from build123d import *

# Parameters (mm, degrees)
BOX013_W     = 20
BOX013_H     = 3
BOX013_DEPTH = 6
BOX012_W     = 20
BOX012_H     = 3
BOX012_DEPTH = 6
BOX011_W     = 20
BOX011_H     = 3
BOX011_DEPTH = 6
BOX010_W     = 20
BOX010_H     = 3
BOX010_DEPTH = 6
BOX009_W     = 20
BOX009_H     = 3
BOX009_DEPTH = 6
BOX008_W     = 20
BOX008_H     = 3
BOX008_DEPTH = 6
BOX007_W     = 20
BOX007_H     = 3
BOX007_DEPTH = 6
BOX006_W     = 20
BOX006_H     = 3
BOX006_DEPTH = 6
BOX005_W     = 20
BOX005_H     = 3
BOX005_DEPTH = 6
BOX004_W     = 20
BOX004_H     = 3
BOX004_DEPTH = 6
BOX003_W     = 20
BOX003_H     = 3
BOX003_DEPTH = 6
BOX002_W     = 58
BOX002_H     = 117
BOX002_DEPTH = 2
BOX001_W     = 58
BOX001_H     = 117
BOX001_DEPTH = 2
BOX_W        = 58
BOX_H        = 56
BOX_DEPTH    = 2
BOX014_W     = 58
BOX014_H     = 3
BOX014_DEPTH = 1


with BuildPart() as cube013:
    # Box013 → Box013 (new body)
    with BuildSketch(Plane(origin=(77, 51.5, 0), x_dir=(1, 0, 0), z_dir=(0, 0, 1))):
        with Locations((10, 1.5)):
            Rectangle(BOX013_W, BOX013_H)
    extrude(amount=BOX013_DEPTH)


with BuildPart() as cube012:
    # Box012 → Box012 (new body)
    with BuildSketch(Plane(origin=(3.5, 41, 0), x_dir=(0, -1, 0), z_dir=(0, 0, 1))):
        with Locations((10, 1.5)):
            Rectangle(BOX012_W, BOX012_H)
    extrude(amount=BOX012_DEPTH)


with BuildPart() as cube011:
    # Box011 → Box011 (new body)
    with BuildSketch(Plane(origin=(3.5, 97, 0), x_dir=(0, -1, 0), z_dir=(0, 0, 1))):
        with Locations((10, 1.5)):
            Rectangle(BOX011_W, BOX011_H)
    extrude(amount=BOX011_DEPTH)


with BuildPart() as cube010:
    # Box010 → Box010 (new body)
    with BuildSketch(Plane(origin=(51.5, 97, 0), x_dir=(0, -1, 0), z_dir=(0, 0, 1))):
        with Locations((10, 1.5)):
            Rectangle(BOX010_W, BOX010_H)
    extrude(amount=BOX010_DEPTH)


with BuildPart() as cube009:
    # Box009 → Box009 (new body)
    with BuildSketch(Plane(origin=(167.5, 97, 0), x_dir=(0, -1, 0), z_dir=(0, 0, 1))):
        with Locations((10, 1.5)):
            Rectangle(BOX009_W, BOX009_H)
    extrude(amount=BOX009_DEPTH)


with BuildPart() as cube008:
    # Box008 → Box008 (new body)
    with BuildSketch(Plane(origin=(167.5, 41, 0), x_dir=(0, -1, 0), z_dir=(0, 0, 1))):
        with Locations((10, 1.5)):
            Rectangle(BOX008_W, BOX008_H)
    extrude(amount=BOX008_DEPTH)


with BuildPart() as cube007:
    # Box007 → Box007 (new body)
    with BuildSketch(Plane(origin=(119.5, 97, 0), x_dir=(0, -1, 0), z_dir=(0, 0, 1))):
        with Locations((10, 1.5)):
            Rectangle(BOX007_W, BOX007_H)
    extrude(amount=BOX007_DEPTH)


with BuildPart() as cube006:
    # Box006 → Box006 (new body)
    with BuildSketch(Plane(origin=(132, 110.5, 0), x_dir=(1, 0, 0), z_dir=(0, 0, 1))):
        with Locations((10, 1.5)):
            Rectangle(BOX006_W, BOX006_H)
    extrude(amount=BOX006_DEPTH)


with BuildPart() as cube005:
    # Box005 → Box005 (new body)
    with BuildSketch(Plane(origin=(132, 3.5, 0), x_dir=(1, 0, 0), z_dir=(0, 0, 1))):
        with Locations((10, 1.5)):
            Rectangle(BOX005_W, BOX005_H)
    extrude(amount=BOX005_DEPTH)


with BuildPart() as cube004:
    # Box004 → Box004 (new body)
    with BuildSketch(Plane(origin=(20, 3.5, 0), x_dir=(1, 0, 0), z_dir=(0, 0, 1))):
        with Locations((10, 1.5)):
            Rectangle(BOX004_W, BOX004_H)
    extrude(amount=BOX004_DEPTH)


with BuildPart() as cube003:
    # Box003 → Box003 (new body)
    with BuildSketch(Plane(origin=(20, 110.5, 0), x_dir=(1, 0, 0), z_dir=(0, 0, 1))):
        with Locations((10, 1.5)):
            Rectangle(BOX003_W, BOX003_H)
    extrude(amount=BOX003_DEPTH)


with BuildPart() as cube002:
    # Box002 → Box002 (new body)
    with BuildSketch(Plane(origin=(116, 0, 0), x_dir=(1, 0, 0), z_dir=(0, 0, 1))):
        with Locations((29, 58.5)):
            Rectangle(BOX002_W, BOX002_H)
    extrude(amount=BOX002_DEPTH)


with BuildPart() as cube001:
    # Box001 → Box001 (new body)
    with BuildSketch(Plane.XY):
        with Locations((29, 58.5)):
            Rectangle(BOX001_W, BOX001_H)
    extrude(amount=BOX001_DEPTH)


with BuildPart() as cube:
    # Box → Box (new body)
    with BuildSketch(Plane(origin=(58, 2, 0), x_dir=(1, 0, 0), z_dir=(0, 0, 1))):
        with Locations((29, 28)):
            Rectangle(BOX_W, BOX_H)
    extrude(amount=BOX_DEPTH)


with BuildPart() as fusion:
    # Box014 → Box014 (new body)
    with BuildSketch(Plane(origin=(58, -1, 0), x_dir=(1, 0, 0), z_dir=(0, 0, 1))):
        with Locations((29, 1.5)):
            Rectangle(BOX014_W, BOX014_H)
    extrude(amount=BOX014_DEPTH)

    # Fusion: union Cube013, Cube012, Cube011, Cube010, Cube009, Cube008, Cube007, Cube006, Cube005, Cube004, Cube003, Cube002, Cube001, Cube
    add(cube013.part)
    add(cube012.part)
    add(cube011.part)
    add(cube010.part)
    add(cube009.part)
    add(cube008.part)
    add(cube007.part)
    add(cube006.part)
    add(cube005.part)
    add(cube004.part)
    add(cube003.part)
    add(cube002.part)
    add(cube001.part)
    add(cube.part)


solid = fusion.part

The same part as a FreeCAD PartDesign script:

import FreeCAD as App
import Part
import Sketcher
from FreeCAD import Vector


def add_polygon(sketch, points):
    """Adds a closed chain of lines whose ends are joined by coincident constraints."""
    first, n = sketch.GeometryCount, len(points)
    for a, b in zip(points, points[1:] + points[:1]):
        sketch.addGeometry(Part.LineSegment(App.Vector(*a, 0), App.Vector(*b, 0)), False)
    for i in range(n):
        sketch.addConstraint(Sketcher.Constraint("Coincident", first + i, 2, first + (i + 1) % n, 1))

doc = App.newDocument("Part")
params = doc.addObject("Spreadsheet::Sheet", "Params")
for row, (alias, value) in enumerate([
    ("sketch1_width", "20 mm"),
    ("sketch1_height", "3 mm"),
    ("pad1_length", "6 mm"),
    ("sketch2_width", "3 mm"),
    ("sketch2_height", "20 mm"),
    ("pad2_length", "6 mm"),
    ("sketch3_width", "3 mm"),
    ("sketch3_height", "20 mm"),
    ("pad3_length", "6 mm"),
    ("sketch4_width", "3 mm"),
    ("sketch4_height", "20 mm"),
    ("pad4_length", "6 mm"),
    ("sketch5_width", "3 mm"),
    ("sketch5_height", "20 mm"),
    ("pad5_length", "6 mm"),
    ("sketch6_width", "3 mm"),
    ("sketch6_height", "20 mm"),
    ("pad6_length", "6 mm"),
    ("sketch7_width", "3 mm"),
    ("sketch7_height", "20 mm"),
    ("pad7_length", "6 mm"),
    ("sketch8_width", "20 mm"),
    ("sketch8_height", "3 mm"),
    ("pad8_length", "6 mm"),
    ("sketch9_width", "20 mm"),
    ("sketch9_height", "3 mm"),
    ("pad9_length", "6 mm"),
    ("sketch10_width", "20 mm"),
    ("sketch10_height", "3 mm"),
    ("pad10_length", "6 mm"),
    ("sketch11_width", "20 mm"),
    ("sketch11_height", "3 mm"),
    ("pad11_length", "6 mm"),
    ("sketch12_width", "58 mm"),
    ("sketch12_height", "117 mm"),
    ("pad12_length", "2 mm"),
    ("sketch13_width", "58 mm"),
    ("sketch13_height", "117 mm"),
    ("pad13_length", "2 mm"),
    ("sketch14_width", "58 mm"),
    ("sketch14_height", "56 mm"),
    ("pad14_length", "2 mm"),
    ("sketch15_width", "58 mm"),
    ("sketch15_height", "3 mm"),
    ("pad15_length", "1 mm"),
], start=1):
    params.set(f"A{row}", alias)
    params.set(f"B{row}", "=" + value)
    params.setAlias(f"B{row}", alias)

body = doc.addObject("PartDesign::Body", "Body")

# Sketch on XY plane
sketch1 = body.newObject("Sketcher::SketchObject", "Sketch")
sketch1.AttachmentSupport = (doc.getObject("XY_Plane"), [""])
sketch1.MapMode = "FlatFace"
add_polygon(sketch1, [(77, 54.5), (77, 51.5), (97, 51.5), (97, 54.5)])  # lines 0-3
sketch1.addConstraint([
    Sketcher.Constraint("Vertical", 0),
    Sketcher.Constraint("Horizontal", 1),
    Sketcher.Constraint("Vertical", 2),
    Sketcher.Constraint("Horizontal", 3),
    Sketcher.Constraint("DistanceX", 1, 1, 1, 2, 20.0),
    Sketcher.Constraint("DistanceY", 0, 2, 0, 1, 3.0),
    Sketcher.Constraint("DistanceX", -1, 1, 0, 2, 77.0),
    Sketcher.Constraint("DistanceY", -1, 1, 0, 2, 51.5),
])
sketch1.setExpression("Constraints[8]", "Params.sketch1_width")
sketch1.setExpression("Constraints[9]", "Params.sketch1_height")
pad1 = body.newObject("PartDesign::Pad", "Pad")
pad1.Profile = sketch1
pad1.setExpression("Length", "Params.pad1_length")
body2 = doc.addObject("PartDesign::Body", "Body001")

# Sketch on XY plane
sketch2 = body2.newObject("Sketcher::SketchObject", "Sketch001")
sketch2.AttachmentSupport = (doc.getObject("XY_Plane001"), [""])
sketch2.MapMode = "FlatFace"
add_polygon(sketch2, [(6.5, 41), (3.5, 41), (3.5, 21), (6.5, 21)])  # lines 0-3
sketch2.addConstraint([
    Sketcher.Constraint("Horizontal", 0),
    Sketcher.Constraint("Vertical", 1),
    Sketcher.Constraint("Horizontal", 2),
    Sketcher.Constraint("Vertical", 3),
    Sketcher.Constraint("DistanceX", 0, 2, 0, 1, 3.0),
    Sketcher.Constraint("DistanceY", 1, 2, 1, 1, 20.0),
    Sketcher.Constraint("DistanceY", -1, 1, 0, 2, 41.0),
    Sketcher.Constraint("DistanceX", -1, 1, 0, 2, 3.5),
])
sketch2.setExpression("Constraints[8]", "Params.sketch2_width")
sketch2.setExpression("Constraints[9]", "Params.sketch2_height")
pad2 = body2.newObject("PartDesign::Pad", "Pad001")
pad2.Profile = sketch2
pad2.setExpression("Length", "Params.pad2_length")
body3 = doc.addObject("PartDesign::Body", "Body002")

# Sketch on XY plane
sketch3 = body3.newObject("Sketcher::SketchObject", "Sketch002")
sketch3.AttachmentSupport = (doc.getObject("XY_Plane002"), [""])
sketch3.MapMode = "FlatFace"
add_polygon(sketch3, [(6.5, 97), (3.5, 97), (3.5, 77), (6.5, 77)])  # lines 0-3
sketch3.addConstraint([
    Sketcher.Constraint("Horizontal", 0),
    Sketcher.Constraint("Vertical", 1),
    Sketcher.Constraint("Horizontal", 2),
    Sketcher.Constraint("Vertical", 3),
    Sketcher.Constraint("DistanceX", 0, 2, 0, 1, 3.0),
    Sketcher.Constraint("DistanceY", 1, 2, 1, 1, 20.0),
    Sketcher.Constraint("DistanceY", -1, 1, 0, 2, 97.0),
    Sketcher.Constraint("DistanceX", -1, 1, 0, 2, 3.5),
])
sketch3.setExpression("Constraints[8]", "Params.sketch3_width")
sketch3.setExpression("Constraints[9]", "Params.sketch3_height")
pad3 = body3.newObject("PartDesign::Pad", "Pad002")
pad3.Profile = sketch3
pad3.setExpression("Length", "Params.pad3_length")
body4 = doc.addObject("PartDesign::Body", "Body003")

# Sketch on XY plane
sketch4 = body4.newObject("Sketcher::SketchObject", "Sketch003")
sketch4.AttachmentSupport = (doc.getObject("XY_Plane003"), [""])
sketch4.MapMode = "FlatFace"
add_polygon(sketch4, [(54.5, 97), (51.5, 97), (51.5, 77), (54.5, 77)])  # lines 0-3
sketch4.addConstraint([
    Sketcher.Constraint("Horizontal", 0),
    Sketcher.Constraint("Vertical", 1),
    Sketcher.Constraint("Horizontal", 2),
    Sketcher.Constraint("Vertical", 3),
    Sketcher.Constraint("DistanceX", 0, 2, 0, 1, 3.0),
    Sketcher.Constraint("DistanceY", 1, 2, 1, 1, 20.0),
    Sketcher.Constraint("DistanceY", -1, 1, 0, 2, 97.0),
    Sketcher.Constraint("DistanceX", -1, 1, 0, 2, 51.5),
])
sketch4.setExpression("Constraints[8]", "Params.sketch4_width")
sketch4.setExpression("Constraints[9]", "Params.sketch4_height")
pad4 = body4.newObject("PartDesign::Pad", "Pad003")
pad4.Profile = sketch4
pad4.setExpression("Length", "Params.pad4_length")
body5 = doc.addObject("PartDesign::Body", "Body004")

# Sketch on XY plane
sketch5 = body5.newObject("Sketcher::SketchObject", "Sketch004")
sketch5.AttachmentSupport = (doc.getObject("XY_Plane004"), [""])
sketch5.MapMode = "FlatFace"
add_polygon(sketch5, [(170.5, 97), (167.5, 97), (167.5, 77), (170.5, 77)])  # lines 0-3
sketch5.addConstraint([
    Sketcher.Constraint("Horizontal", 0),
    Sketcher.Constraint("Vertical", 1),
    Sketcher.Constraint("Horizontal", 2),
    Sketcher.Constraint("Vertical", 3),
    Sketcher.Constraint("DistanceX", 0, 2, 0, 1, 3.0),
    Sketcher.Constraint("DistanceY", 1, 2, 1, 1, 20.0),
    Sketcher.Constraint("DistanceY", -1, 1, 0, 2, 97.0),
    Sketcher.Constraint("DistanceX", -1, 1, 0, 2, 167.5),
])
sketch5.setExpression("Constraints[8]", "Params.sketch5_width")
sketch5.setExpression("Constraints[9]", "Params.sketch5_height")
pad5 = body5.newObject("PartDesign::Pad", "Pad004")
pad5.Profile = sketch5
pad5.setExpression("Length", "Params.pad5_length")
body6 = doc.addObject("PartDesign::Body", "Body005")

# Sketch on XY plane
sketch6 = body6.newObject("Sketcher::SketchObject", "Sketch005")
sketch6.AttachmentSupport = (doc.getObject("XY_Plane005"), [""])
sketch6.MapMode = "FlatFace"
add_polygon(sketch6, [(170.5, 41), (167.5, 41), (167.5, 21), (170.5, 21)])  # lines 0-3
sketch6.addConstraint([
    Sketcher.Constraint("Horizontal", 0),
    Sketcher.Constraint("Vertical", 1),
    Sketcher.Constraint("Horizontal", 2),
    Sketcher.Constraint("Vertical", 3),
    Sketcher.Constraint("DistanceX", 0, 2, 0, 1, 3.0),
    Sketcher.Constraint("DistanceY", 1, 2, 1, 1, 20.0),
    Sketcher.Constraint("DistanceY", -1, 1, 0, 2, 41.0),
    Sketcher.Constraint("DistanceX", -1, 1, 0, 2, 167.5),
])
sketch6.setExpression("Constraints[8]", "Params.sketch6_width")
sketch6.setExpression("Constraints[9]", "Params.sketch6_height")
pad6 = body6.newObject("PartDesign::Pad", "Pad005")
pad6.Profile = sketch6
pad6.setExpression("Length", "Params.pad6_length")
body7 = doc.addObject("PartDesign::Body", "Body006")

# Sketch on XY plane
sketch7 = body7.newObject("Sketcher::SketchObject", "Sketch006")
sketch7.AttachmentSupport = (doc.getObject("XY_Plane006"), [""])
sketch7.MapMode = "FlatFace"
add_polygon(sketch7, [(122.5, 97), (119.5, 97), (119.5, 77), (122.5, 77)])  # lines 0-3
sketch7.addConstraint([
    Sketcher.Constraint("Horizontal", 0),
    Sketcher.Constraint("Vertical", 1),
    Sketcher.Constraint("Horizontal", 2),
    Sketcher.Constraint("Vertical", 3),
    Sketcher.Constraint("DistanceX", 0, 2, 0, 1, 3.0),
    Sketcher.Constraint("DistanceY", 1, 2, 1, 1, 20.0),
    Sketcher.Constraint("DistanceY", -1, 1, 0, 2, 97.0),
    Sketcher.Constraint("DistanceX", -1, 1, 0, 2, 119.5),
])
sketch7.setExpression("Constraints[8]", "Params.sketch7_width")
sketch7.setExpression("Constraints[9]", "Params.sketch7_height")
pad7 = body7.newObject("PartDesign::Pad", "Pad006")
pad7.Profile = sketch7
pad7.setExpression("Length", "Params.pad7_length")
body8 = doc.addObject("PartDesign::Body", "Body007")

# Sketch on XY plane
sketch8 = body8.newObject("Sketcher::SketchObject", "Sketch007")
sketch8.AttachmentSupport = (doc.getObject("XY_Plane007"), [""])
sketch8.MapMode = "FlatFace"
add_polygon(sketch8, [(132, 113.5), (132, 110.5), (152, 110.5), (152, 113.5)])  # lines 0-3
sketch8.addConstraint([
    Sketcher.Constraint("Vertical", 0),
    Sketcher.Constraint("Horizontal", 1),
    Sketcher.Constraint("Vertical", 2),
    Sketcher.Constraint("Horizontal", 3),
    Sketcher.Constraint("DistanceX", 1, 1, 1, 2, 20.0),
    Sketcher.Constraint("DistanceY", 0, 2, 0, 1, 3.0),
    Sketcher.Constraint("DistanceX", -1, 1, 0, 2, 132.0),
    Sketcher.Constraint("DistanceY", -1, 1, 0, 2, 110.5),
])
sketch8.setExpression("Constraints[8]", "Params.sketch8_width")
sketch8.setExpression("Constraints[9]", "Params.sketch8_height")
pad8 = body8.newObject("PartDesign::Pad", "Pad007")
pad8.Profile = sketch8
pad8.setExpression("Length", "Params.pad8_length")
body9 = doc.addObject("PartDesign::Body", "Body008")

# Sketch on XY plane
sketch9 = body9.newObject("Sketcher::SketchObject", "Sketch008")
sketch9.AttachmentSupport = (doc.getObject("XY_Plane008"), [""])
sketch9.MapMode = "FlatFace"
add_polygon(sketch9, [(132, 6.5), (132, 3.5), (152, 3.5), (152, 6.5)])  # lines 0-3
sketch9.addConstraint([
    Sketcher.Constraint("Vertical", 0),
    Sketcher.Constraint("Horizontal", 1),
    Sketcher.Constraint("Vertical", 2),
    Sketcher.Constraint("Horizontal", 3),
    Sketcher.Constraint("DistanceX", 1, 1, 1, 2, 20.0),
    Sketcher.Constraint("DistanceY", 0, 2, 0, 1, 3.0),
    Sketcher.Constraint("DistanceX", -1, 1, 0, 2, 132.0),
    Sketcher.Constraint("DistanceY", -1, 1, 0, 2, 3.5),
])
sketch9.setExpression("Constraints[8]", "Params.sketch9_width")
sketch9.setExpression("Constraints[9]", "Params.sketch9_height")
pad9 = body9.newObject("PartDesign::Pad", "Pad008")
pad9.Profile = sketch9
pad9.setExpression("Length", "Params.pad9_length")
body10 = doc.addObject("PartDesign::Body", "Body009")

# Sketch on XY plane
sketch10 = body10.newObject("Sketcher::SketchObject", "Sketch009")
sketch10.AttachmentSupport = (doc.getObject("XY_Plane009"), [""])
sketch10.MapMode = "FlatFace"
add_polygon(sketch10, [(20, 6.5), (20, 3.5), (40, 3.5), (40, 6.5)])  # lines 0-3
sketch10.addConstraint([
    Sketcher.Constraint("Vertical", 0),
    Sketcher.Constraint("Horizontal", 1),
    Sketcher.Constraint("Vertical", 2),
    Sketcher.Constraint("Horizontal", 3),
    Sketcher.Constraint("DistanceX", 1, 1, 1, 2, 20.0),
    Sketcher.Constraint("DistanceY", 0, 2, 0, 1, 3.0),
    Sketcher.Constraint("DistanceX", -1, 1, 0, 2, 20.0),
    Sketcher.Constraint("DistanceY", -1, 1, 0, 2, 3.5),
])
sketch10.setExpression("Constraints[8]", "Params.sketch10_width")
sketch10.setExpression("Constraints[9]", "Params.sketch10_height")
pad10 = body10.newObject("PartDesign::Pad", "Pad009")
pad10.Profile = sketch10
pad10.setExpression("Length", "Params.pad10_length")
body11 = doc.addObject("PartDesign::Body", "Body010")

# Sketch on XY plane
sketch11 = body11.newObject("Sketcher::SketchObject", "Sketch010")
sketch11.AttachmentSupport = (doc.getObject("XY_Plane010"), [""])
sketch11.MapMode = "FlatFace"
add_polygon(sketch11, [(20, 113.5), (20, 110.5), (40, 110.5), (40, 113.5)])  # lines 0-3
sketch11.addConstraint([
    Sketcher.Constraint("Vertical", 0),
    Sketcher.Constraint("Horizontal", 1),
    Sketcher.Constraint("Vertical", 2),
    Sketcher.Constraint("Horizontal", 3),
    Sketcher.Constraint("DistanceX", 1, 1, 1, 2, 20.0),
    Sketcher.Constraint("DistanceY", 0, 2, 0, 1, 3.0),
    Sketcher.Constraint("DistanceX", -1, 1, 0, 2, 20.0),
    Sketcher.Constraint("DistanceY", -1, 1, 0, 2, 110.5),
])
sketch11.setExpression("Constraints[8]", "Params.sketch11_width")
sketch11.setExpression("Constraints[9]", "Params.sketch11_height")
pad11 = body11.newObject("PartDesign::Pad", "Pad010")
pad11.Profile = sketch11
pad11.setExpression("Length", "Params.pad11_length")
body12 = doc.addObject("PartDesign::Body", "Body011")

# Sketch on XY plane
sketch12 = body12.newObject("Sketcher::SketchObject", "Sketch011")
sketch12.AttachmentSupport = (doc.getObject("XY_Plane011"), [""])
sketch12.MapMode = "FlatFace"
add_polygon(sketch12, [(116, 117), (116, 0), (174, 0), (174, 117)])  # lines 0-3
sketch12.addConstraint([
    Sketcher.Constraint("Vertical", 0),
    Sketcher.Constraint("Horizontal", 1),
    Sketcher.Constraint("Vertical", 2),
    Sketcher.Constraint("Horizontal", 3),
    Sketcher.Constraint("PointOnObject", 0, 2, -1),
    Sketcher.Constraint("DistanceX", 1, 1, 1, 2, 58.0),
    Sketcher.Constraint("DistanceY", 0, 2, 0, 1, 117.0),
    Sketcher.Constraint("DistanceX", -1, 1, 0, 2, 116.0),
])
sketch12.setExpression("Constraints[9]", "Params.sketch12_width")
sketch12.setExpression("Constraints[10]", "Params.sketch12_height")
pad12 = body12.newObject("PartDesign::Pad", "Pad011")
pad12.Profile = sketch12
pad12.setExpression("Length", "Params.pad12_length")
body13 = doc.addObject("PartDesign::Body", "Body012")

# Sketch on XY plane
sketch13 = body13.newObject("Sketcher::SketchObject", "Sketch012")
sketch13.AttachmentSupport = (doc.getObject("XY_Plane012"), [""])
sketch13.MapMode = "FlatFace"
add_polygon(sketch13, [(0, 117), (0, 0), (58, 0), (58, 117)])  # lines 0-3
sketch13.addConstraint([
    Sketcher.Constraint("Vertical", 0),
    Sketcher.Constraint("Horizontal", 1),
    Sketcher.Constraint("Vertical", 2),
    Sketcher.Constraint("Horizontal", 3),
    Sketcher.Constraint("Coincident", 0, 2, -1, 1),
    Sketcher.Constraint("DistanceX", 1, 1, 1, 2, 58.0),
    Sketcher.Constraint("DistanceY", 0, 2, 0, 1, 117.0),
])
sketch13.setExpression("Constraints[9]", "Params.sketch13_width")
sketch13.setExpression("Constraints[10]", "Params.sketch13_height")
pad13 = body13.newObject("PartDesign::Pad", "Pad012")
pad13.Profile = sketch13
pad13.setExpression("Length", "Params.pad13_length")
body14 = doc.addObject("PartDesign::Body", "Body013")

# Sketch on XY plane
sketch14 = body14.newObject("Sketcher::SketchObject", "Sketch013")
sketch14.AttachmentSupport = (doc.getObject("XY_Plane013"), [""])
sketch14.MapMode = "FlatFace"
add_polygon(sketch14, [(58, 58), (58, 2), (116, 2), (116, 58)])  # lines 0-3
sketch14.addConstraint([
    Sketcher.Constraint("Vertical", 0),
    Sketcher.Constraint("Horizontal", 1),
    Sketcher.Constraint("Vertical", 2),
    Sketcher.Constraint("Horizontal", 3),
    Sketcher.Constraint("DistanceX", 1, 1, 1, 2, 58.0),
    Sketcher.Constraint("DistanceY", 0, 2, 0, 1, 56.0),
    Sketcher.Constraint("DistanceX", -1, 1, 0, 2, 58.0),
    Sketcher.Constraint("DistanceY", -1, 1, 0, 2, 2.0),
])
sketch14.setExpression("Constraints[8]", "Params.sketch14_width")
sketch14.setExpression("Constraints[9]", "Params.sketch14_height")
pad14 = body14.newObject("PartDesign::Pad", "Pad013")
pad14.Profile = sketch14
pad14.setExpression("Length", "Params.pad14_length")
body15 = doc.addObject("PartDesign::Body", "Body014")
body15.AllowCompound = True

# Sketch on XY plane
sketch15 = body15.newObject("Sketcher::SketchObject", "Sketch014")
sketch15.AttachmentSupport = (doc.getObject("XY_Plane014"), [""])
sketch15.MapMode = "FlatFace"
add_polygon(sketch15, [(58, 2), (58, -1), (116, -1), (116, 2)])  # lines 0-3
sketch15.addConstraint([
    Sketcher.Constraint("Vertical", 0),
    Sketcher.Constraint("Horizontal", 1),
    Sketcher.Constraint("Vertical", 2),
    Sketcher.Constraint("Horizontal", 3),
    Sketcher.Constraint("DistanceX", 1, 1, 1, 2, 58.0),
    Sketcher.Constraint("DistanceY", 0, 2, 0, 1, 3.0),
    Sketcher.Constraint("DistanceX", -1, 1, 0, 2, 58.0),
    Sketcher.Constraint("DistanceY", 0, 2, -1, 1, 1.0),
])
sketch15.setExpression("Constraints[8]", "Params.sketch15_width")
sketch15.setExpression("Constraints[9]", "Params.sketch15_height")
pad15 = body15.newObject("PartDesign::Pad", "Pad014")
pad15.Profile = sketch15
pad15.setExpression("Length", "Params.pad15_length")
doc.recompute()

boolean = body15.newObject("PartDesign::Boolean", "Boolean")
boolean.Type = "Fuse"
boolean.addObjects([body])
doc.recompute()

boolean2 = body15.newObject("PartDesign::Boolean", "Boolean001")
boolean2.Type = "Fuse"
boolean2.addObjects([body2])
doc.recompute()

boolean3 = body15.newObject("PartDesign::Boolean", "Boolean002")
boolean3.Type = "Fuse"
boolean3.addObjects([body3])
doc.recompute()

boolean4 = body15.newObject("PartDesign::Boolean", "Boolean003")
boolean4.Type = "Fuse"
boolean4.addObjects([body4])
doc.recompute()

boolean5 = body15.newObject("PartDesign::Boolean", "Boolean004")
boolean5.Type = "Fuse"
boolean5.addObjects([body5])
doc.recompute()

boolean6 = body15.newObject("PartDesign::Boolean", "Boolean005")
boolean6.Type = "Fuse"
boolean6.addObjects([body6])
doc.recompute()

boolean7 = body15.newObject("PartDesign::Boolean", "Boolean006")
boolean7.Type = "Fuse"
boolean7.addObjects([body7])
doc.recompute()

boolean8 = body15.newObject("PartDesign::Boolean", "Boolean007")
boolean8.Type = "Fuse"
boolean8.addObjects([body8])
doc.recompute()

boolean9 = body15.newObject("PartDesign::Boolean", "Boolean008")
boolean9.Type = "Fuse"
boolean9.addObjects([body9])
doc.recompute()

boolean10 = body15.newObject("PartDesign::Boolean", "Boolean009")
boolean10.Type = "Fuse"
boolean10.addObjects([body10])
doc.recompute()

boolean11 = body15.newObject("PartDesign::Boolean", "Boolean010")
boolean11.Type = "Fuse"
boolean11.addObjects([body11])
doc.recompute()

boolean12 = body15.newObject("PartDesign::Boolean", "Boolean011")
boolean12.Type = "Fuse"
boolean12.addObjects([body12])
doc.recompute()

boolean13 = body15.newObject("PartDesign::Boolean", "Boolean012")
boolean13.Type = "Fuse"
boolean13.addObjects([body13])
doc.recompute()

boolean14 = body15.newObject("PartDesign::Boolean", "Boolean013")
boolean14.Type = "Fuse"
boolean14.addObjects([body14])

doc.recompute()
